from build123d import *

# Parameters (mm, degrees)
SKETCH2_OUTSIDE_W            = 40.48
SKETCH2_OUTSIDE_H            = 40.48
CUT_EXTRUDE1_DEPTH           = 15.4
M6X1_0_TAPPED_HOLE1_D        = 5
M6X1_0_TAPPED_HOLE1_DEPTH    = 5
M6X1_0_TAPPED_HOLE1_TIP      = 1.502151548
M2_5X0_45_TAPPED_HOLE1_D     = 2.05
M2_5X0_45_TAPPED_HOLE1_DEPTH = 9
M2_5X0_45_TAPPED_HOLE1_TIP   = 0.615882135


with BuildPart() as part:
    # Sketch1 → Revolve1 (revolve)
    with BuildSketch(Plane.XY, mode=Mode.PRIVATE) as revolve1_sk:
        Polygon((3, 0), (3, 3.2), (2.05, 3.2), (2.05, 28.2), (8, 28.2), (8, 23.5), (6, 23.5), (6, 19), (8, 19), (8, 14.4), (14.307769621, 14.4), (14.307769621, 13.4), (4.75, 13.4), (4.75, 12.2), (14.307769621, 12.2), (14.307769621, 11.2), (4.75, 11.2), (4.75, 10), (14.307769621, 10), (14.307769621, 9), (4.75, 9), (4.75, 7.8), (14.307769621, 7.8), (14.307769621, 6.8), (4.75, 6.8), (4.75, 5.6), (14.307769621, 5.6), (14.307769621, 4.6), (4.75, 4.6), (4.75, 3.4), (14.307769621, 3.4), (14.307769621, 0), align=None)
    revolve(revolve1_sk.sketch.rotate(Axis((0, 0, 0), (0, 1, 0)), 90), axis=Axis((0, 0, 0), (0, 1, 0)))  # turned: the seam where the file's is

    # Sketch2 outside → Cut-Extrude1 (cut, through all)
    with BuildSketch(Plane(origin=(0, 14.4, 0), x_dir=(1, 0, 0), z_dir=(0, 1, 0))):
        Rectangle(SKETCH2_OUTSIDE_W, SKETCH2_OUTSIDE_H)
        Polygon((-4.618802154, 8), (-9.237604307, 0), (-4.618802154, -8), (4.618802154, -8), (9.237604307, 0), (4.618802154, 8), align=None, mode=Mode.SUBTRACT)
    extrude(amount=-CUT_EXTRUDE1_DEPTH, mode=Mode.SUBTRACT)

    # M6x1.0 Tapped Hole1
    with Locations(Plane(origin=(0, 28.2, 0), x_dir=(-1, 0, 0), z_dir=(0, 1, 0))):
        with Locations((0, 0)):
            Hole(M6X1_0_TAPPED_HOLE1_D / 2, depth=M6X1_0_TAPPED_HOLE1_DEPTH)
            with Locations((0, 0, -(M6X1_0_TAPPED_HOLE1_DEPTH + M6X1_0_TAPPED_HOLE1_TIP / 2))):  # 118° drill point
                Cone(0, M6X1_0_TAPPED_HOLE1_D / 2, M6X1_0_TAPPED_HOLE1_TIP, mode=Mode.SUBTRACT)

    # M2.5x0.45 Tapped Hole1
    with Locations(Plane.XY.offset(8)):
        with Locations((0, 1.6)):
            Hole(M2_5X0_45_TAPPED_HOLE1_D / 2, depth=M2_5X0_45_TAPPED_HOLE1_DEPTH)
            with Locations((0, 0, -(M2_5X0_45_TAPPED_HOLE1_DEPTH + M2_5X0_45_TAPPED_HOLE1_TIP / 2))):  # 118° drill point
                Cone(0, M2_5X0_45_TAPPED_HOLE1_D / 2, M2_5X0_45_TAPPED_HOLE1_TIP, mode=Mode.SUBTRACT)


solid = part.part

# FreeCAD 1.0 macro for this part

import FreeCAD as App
import Part
import Sketcher
from FreeCAD import Vector
Q = App.Units.Quantity


def add_polygon(sketch, points):
    """Adds a closed chain of lines whose ends are joined by coincident constraints."""
    first, n = sketch.GeometryCount, len(points)
    for a, b in zip(points, points[1:] + points[:1]):
        sketch.addGeometry(Part.LineSegment(App.Vector(*a, 0), App.Vector(*b, 0)), False)
    for i in range(n):
        sketch.addConstraint(Sketcher.Constraint("Coincident", first + i, 2, first + (i + 1) % n, 1))

doc = App.newDocument("Part")
body = doc.addObject("PartDesign::Body", "Body")

# Sketch on XY plane
sketch1 = body.newObject("Sketcher::SketchObject", "Sketch")
sketch1.AttachmentSupport = (doc.getObject("XY_Plane"), [""])
sketch1.MapMode = "FlatFace"
add_polygon(sketch1, [(3, 3.2), (3, 0), (14.3, 0), (14.3, 3.4), (4.8, 3.4), (4.8, 4.6), (14.3, 4.6), (14.3, 5.6), (4.8, 5.6), (4.8, 6.8), (14.3, 6.8), (14.3, 7.8), (4.8, 7.8), (4.8, 9), (14.3, 9), (14.3, 10), (4.8, 10), (4.8, 11.2), (14.3, 11.2), (14.3, 12.2), (4.8, 12.2), (4.8, 13.4), (14.3, 13.4), (14.3, 14.4), (8, 14.4), (8, 19), (6, 19), (6, 23.5), (8, 23.5), (8, 28.2), (2, 28.2), (2, 3.2)])  # lines 0-31
sketch1.addConstraint([
    Sketcher.Constraint("Vertical", 0),
    Sketcher.Constraint("Horizontal", 1),
    Sketcher.Constraint("Vertical", 2),
    Sketcher.Constraint("Horizontal", 3),
    Sketcher.Constraint("Vertical", 4),
    Sketcher.Constraint("Horizontal", 5),
    Sketcher.Constraint("Vertical", 6),
    Sketcher.Constraint("Horizontal", 7),
    Sketcher.Constraint("Vertical", 8),
    Sketcher.Constraint("Horizontal", 9),
    Sketcher.Constraint("Vertical", 10),
    Sketcher.Constraint("Horizontal", 11),
    Sketcher.Constraint("Vertical", 12),
    Sketcher.Constraint("Horizontal", 13),
    Sketcher.Constraint("Vertical", 14),
    Sketcher.Constraint("Horizontal", 15),
    Sketcher.Constraint("Vertical", 16),
    Sketcher.Constraint("Horizontal", 17),
    Sketcher.Constraint("Vertical", 18),
    Sketcher.Constraint("Horizontal", 19),
    Sketcher.Constraint("Vertical", 20),
    Sketcher.Constraint("Horizontal", 21),
    Sketcher.Constraint("Vertical", 22),
    Sketcher.Constraint("Horizontal", 23),
    Sketcher.Constraint("Vertical", 24),
    Sketcher.Constraint("Horizontal", 25),
    Sketcher.Constraint("Vertical", 26),
    Sketcher.Constraint("Horizontal", 27),
    Sketcher.Constraint("Vertical", 28),
    Sketcher.Constraint("Horizontal", 29),
    Sketcher.Constraint("Vertical", 30),
    Sketcher.Constraint("Horizontal", 31),
    Sketcher.Constraint("PointOnObject", 0, 2, -1),
    Sketcher.Constraint("Vertical", 2, 2, 5, 2),
    Sketcher.Constraint("Vertical", 4, 2, 7, 2),
    Sketcher.Constraint("Vertical", 6, 2, 9, 2),
    Sketcher.Constraint("Vertical", 8, 2, 11, 2),
    Sketcher.Constraint("Vertical", 10, 2, 13, 2),
    Sketcher.Constraint("Vertical", 12, 2, 15, 2),
    Sketcher.Constraint("Vertical", 14, 2, 17, 2),
    Sketcher.Constraint("Vertical", 16, 2, 19, 2),
    Sketcher.Constraint("Vertical", 18, 2, 21, 2),
    Sketcher.Constraint("Vertical", 24, 2, 27, 2),
    Sketcher.Constraint("Equal", 4, 8),
    Sketcher.Constraint("Equal", 6, 10),
    Sketcher.Constraint("Equal", 8, 12),
    Sketcher.Constraint("Equal", 10, 14),
    Sketcher.Constraint("Equal", 12, 16),
    Sketcher.Constraint("Equal", 14, 18),
    Sketcher.Constraint("Equal", 16, 20),
    Sketcher.Constraint("Equal", 18, 22),
    Sketcher.Constraint("DistanceX", 25, 2, 25, 1, 2.0),
    Sketcher.Constraint("DistanceY", 6, 1, 6, 2, 1.0),
    Sketcher.Constraint("DistanceY", 30, 2, 30, 1, 25.0),
    Sketcher.Constraint("DistanceY", 0, 2, 0, 1, 3.2),
    Sketcher.Constraint("DistanceY", 2, 1, 2, 2, 3.4),
    Sketcher.Constraint("DistanceY", 4, 1, 4, 2, 1.2),
    Sketcher.Constraint("DistanceY", 24, 1, 24, 2, 4.6),
    Sketcher.Constraint("DistanceY", 26, 1, 26, 2, 4.5),
    Sketcher.Constraint("DistanceX", -1, 1, 0, 2, 3.0),
    Sketcher.Constraint("DistanceX", -1, 1, 23, 2, 8.0),
    Sketcher.Constraint("DistanceX", 29, 2, 29, 1, 5.95),
    Sketcher.Constraint("DistanceX", 30, 2, 3, 2, 2.7),
    Sketcher.Constraint("DistanceX", 1, 1, 1, 2, 11.30777),
])
revolution = body.newObject("PartDesign::Revolution", "Revolution")
revolution.Profile = sketch1
revolution.ReferenceAxis = (sketch1, ["V_Axis"])
revolution.Angle = 360

# Sketch on XZ plane
sketch2 = body.newObject("Sketcher::SketchObject", "Sketch001")
sketch2.AttachmentSupport = (doc.getObject("XZ_Plane"), [""])
sketch2.MapMode = "FlatFace"
sketch2.AttachmentOffset = App.Placement(Vector(0, 0, -14.4), App.Rotation())
add_polygon(sketch2, [(-20, -20), (-20, 20), (20, 20), (20, -20)])  # lines 0-3
add_polygon(sketch2, [(-9, 0), (-5, -8), (5, -8), (9, 0), (5, 8), (-5, 8)])  # lines 4-9
sketch2.addConstraint([
    Sketcher.Constraint("Vertical", 0),
    Sketcher.Constraint("Horizontal", 1),
    Sketcher.Constraint("Vertical", 2),
    Sketcher.Constraint("Horizontal", 3),
    Sketcher.Constraint("Horizontal", 5),
    Sketcher.Constraint("Horizontal", 8),
    Sketcher.Constraint("Symmetric", 0, 2, 2, 2, -1, 1),
    Sketcher.Constraint("Symmetric", 4, 2, 7, 2, -1, 1),
    Sketcher.Constraint("Symmetric", 6, 2, 9, 2, -1, 1),
    Sketcher.Constraint("PointOnObject", 6, 2, -1),
    Sketcher.Constraint("Parallel", 6, 9),
    Sketcher.Constraint("Vertical", 5, 2, 7, 2),
    Sketcher.Constraint("Equal", 3, 0),
    Sketcher.Constraint("Angle", 4, Q("-60 deg")),
    Sketcher.Constraint("DistanceY", 4, 2, -1, 1, 8.0),
    Sketcher.Constraint("DistanceX", 1, 1, 1, 2, 40.48),
    Sketcher.Constraint("DistanceX", 5, 1, 5, 2, 9.237604),
])
pocket1 = body.newObject("PartDesign::Pocket", "Pocket")
pocket1.Profile = sketch2
pocket1.Type = "ThroughAll"
pocket1.Reversed = True

# Sketch on XZ plane
sketch3 = body.newObject("Sketcher::SketchObject", "Sketch002")
sketch3.AttachmentSupport = (doc.getObject("XZ_Plane"), [""])
sketch3.MapMode = "FlatFace"
sketch3.AttachmentOffset = App.Placement(Vector(0, 0, -28.2), App.Rotation())
sketch3.addGeometry(Part.Circle(Vector(0, 0, 0), Vector(0, 0, 1), 2.5), False)
sketch3.addConstraint([
    Sketcher.Constraint("Coincident", 0, 3, -1, 1),
    Sketcher.Constraint("Diameter", 0, 5.0),
])
doc.recompute()
hole = body.newObject("PartDesign::Hole", "Hole")
hole.Profile = sketch3
hole.ThreadType = "None"
hole.Diameter = 5
hole.DepthType = "Dimension"
hole.Depth = 5
hole.DrillPoint = "Angled"
hole.DrillPointAngle = 118
hole.Reversed = True

# Sketch on XY plane
sketch4 = body.newObject("Sketcher::SketchObject", "Sketch003")
sketch4.AttachmentSupport = (doc.getObject("XY_Plane"), [""])
sketch4.MapMode = "FlatFace"
sketch4.AttachmentOffset = App.Placement(Vector(0, 0, 8), App.Rotation())
sketch4.addGeometry(Part.Circle(Vector(0, 1.6, 0), Vector(0, 0, 1), 1), False)
sketch4.addConstraint([
    Sketcher.Constraint("PointOnObject", 0, 3, -2),
    Sketcher.Constraint("Diameter", 0, 2.05),
    Sketcher.Constraint("DistanceY", -1, 1, 0, 3, 1.6),
])
doc.recompute()
hole2 = body.newObject("PartDesign::Hole", "Hole001")
hole2.Profile = sketch4
hole2.ThreadType = "None"
hole2.Diameter = 2.05
hole2.DepthType = "Dimension"
hole2.Depth = 9
hole2.DrillPoint = "Angled"
hole2.DrillPointAngle = 118

doc.recompute()
